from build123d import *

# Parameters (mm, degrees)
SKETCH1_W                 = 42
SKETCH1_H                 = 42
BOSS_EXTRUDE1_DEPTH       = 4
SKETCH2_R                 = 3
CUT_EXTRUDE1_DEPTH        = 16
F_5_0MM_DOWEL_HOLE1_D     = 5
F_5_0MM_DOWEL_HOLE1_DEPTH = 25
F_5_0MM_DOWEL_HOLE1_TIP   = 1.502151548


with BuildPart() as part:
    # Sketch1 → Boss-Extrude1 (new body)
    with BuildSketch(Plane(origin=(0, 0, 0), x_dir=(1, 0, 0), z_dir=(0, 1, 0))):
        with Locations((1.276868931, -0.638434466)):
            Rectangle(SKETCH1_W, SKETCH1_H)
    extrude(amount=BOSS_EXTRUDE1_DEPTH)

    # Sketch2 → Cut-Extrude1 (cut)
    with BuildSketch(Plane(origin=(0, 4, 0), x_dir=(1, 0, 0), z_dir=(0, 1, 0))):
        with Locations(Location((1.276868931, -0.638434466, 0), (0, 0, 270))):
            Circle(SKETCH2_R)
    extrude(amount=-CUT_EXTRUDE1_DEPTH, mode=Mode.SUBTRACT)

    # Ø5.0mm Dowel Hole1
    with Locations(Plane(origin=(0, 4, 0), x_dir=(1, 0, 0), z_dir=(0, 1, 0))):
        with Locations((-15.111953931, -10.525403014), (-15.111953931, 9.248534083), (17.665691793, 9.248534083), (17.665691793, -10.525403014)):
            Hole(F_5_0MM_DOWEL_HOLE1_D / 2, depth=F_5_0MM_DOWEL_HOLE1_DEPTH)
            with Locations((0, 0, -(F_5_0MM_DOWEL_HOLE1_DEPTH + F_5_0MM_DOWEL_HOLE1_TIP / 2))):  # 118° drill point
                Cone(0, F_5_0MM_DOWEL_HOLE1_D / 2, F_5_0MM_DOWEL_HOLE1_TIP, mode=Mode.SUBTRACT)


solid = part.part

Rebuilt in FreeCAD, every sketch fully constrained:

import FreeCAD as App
import Part
import Sketcher
from FreeCAD import Vector
Q = App.Units.Quantity


def add_polygon(sketch, points):
    """Adds a closed chain of lines whose ends are joined by coincident constraints."""
    first, n = sketch.GeometryCount, len(points)
    for a, b in zip(points, points[1:] + points[:1]):
        sketch.addGeometry(Part.LineSegment(App.Vector(*a, 0), App.Vector(*b, 0)), False)
    for i in range(n):
        sketch.addConstraint(Sketcher.Constraint("Coincident", first + i, 2, first + (i + 1) % n, 1))

doc = App.newDocument("Part")
body = doc.addObject("PartDesign::Body", "Body")

# Sketch on XZ plane
sketch1 = doc.addObject("Sketcher::SketchObject", "Sketch")
body.addObject(sketch1)
sketch1.AttachmentSupport = (doc.XZ_Plane, [""])
sketch1.MapMode = "FlatFace"
add_polygon(sketch1, [(-20, -20), (-20, 22), (22, 22), (22, -20)])  # lines 0-3
sketch1.addConstraint([
    Sketcher.Constraint("Vertical", 0),
    Sketcher.Constraint("Horizontal", 1),
    Sketcher.Constraint("Vertical", 2),
    Sketcher.Constraint("Horizontal", 3),
    Sketcher.Constraint("Equal", 3, 0),
    Sketcher.Constraint("DistanceX", 1, 1, 1, 2, Q("42 mm")),
    Sketcher.Constraint("DistanceX", 0, 2, -1, 1, Q("19.723131 mm")),
    Sketcher.Constraint("DistanceY", -1, 1, 0, 2, Q("21.638434 mm")),
])
pad1 = doc.addObject("PartDesign::Pad", "Pad")
body.addObject(pad1)
pad1.Profile = sketch1
pad1.Length = 4
pad1.Reversed = True

# Sketch on XZ plane
sketch2 = doc.addObject("Sketcher::SketchObject", "Sketch001")
body.addObject(sketch2)
sketch2.AttachmentSupport = (doc.XZ_Plane, [""])
sketch2.MapMode = "FlatFace"
sketch2.AttachmentOffset = App.Placement(Vector(0, 0, -4), App.Rotation())
sketch2.addGeometry(Part.Circle(Vector(1.3, 0.6, 0), Vector(0, 0, 1), 3), False)
sketch2.addConstraint([
    Sketcher.Constraint("Diameter", 0, Q("6 mm")),
    Sketcher.Constraint("DistanceX", -1, 1, 0, 3, Q("1.276869 mm")),
    Sketcher.Constraint("DistanceY", -1, 1, 0, 3, Q("0.638434 mm")),
])
pocket1 = doc.addObject("PartDesign::Pocket", "Pocket")
body.addObject(pocket1)
pocket1.Profile = sketch2
pocket1.Length = 16
pocket1.Reversed = True

# Sketch on XZ plane
sketch3 = doc.addObject("Sketcher::SketchObject", "Sketch002")
body.addObject(sketch3)
sketch3.AttachmentSupport = (doc.XZ_Plane, [""])
sketch3.MapMode = "FlatFace"
sketch3.AttachmentOffset = App.Placement(Vector(0, 0, -4), App.Rotation())
sketch3.addGeometry([
    Part.Circle(Vector(-15.1, 10.5, 0), Vector(0, 0, 1), 2.5),
    Part.Circle(Vector(-15.1, -9.2, 0), Vector(0, 0, 1), 2.5),
    Part.Circle(Vector(17.7, -9.2, 0), Vector(0, 0, 1), 2.5),
    Part.Circle(Vector(17.7, 10.5, 0), Vector(0, 0, 1), 2.5),
], False)
sketch3.addConstraint([
    Sketcher.Constraint("Equal", 0, 1),
    Sketcher.Constraint("Equal", 1, 2),
    Sketcher.Constraint("Equal", 2, 3),
    Sketcher.Constraint("Horizontal", 1, 3, 2, 3),
    Sketcher.Constraint("Horizontal", 0, 3, 3, 3),
    Sketcher.Constraint("Vertical", 0, 3, 1, 3),
    Sketcher.Constraint("Vertical", 2, 3, 3, 3),
    Sketcher.Constraint("Diameter", 0, Q("5 mm")),
    Sketcher.Constraint("DistanceX", -1, 1, 2, 3, Q("17.665692 mm")),
    Sketcher.Constraint("DistanceX", 0, 3, -1, 1, Q("15.111954 mm")),
    Sketcher.Constraint("DistanceY", -1, 1, 0, 3, Q("10.525403 mm")),
    Sketcher.Constraint("DistanceY", 1, 3, -1, 1, Q("9.248534 mm")),
])
doc.recompute()
hole = doc.addObject("PartDesign::Hole", "Hole")
body.addObject(hole)
hole.Profile = sketch3
hole.ThreadType = "None"
hole.Diameter = 5
hole.DepthType = "Dimension"
hole.Depth = 25
hole.DrillPoint = "Angled"
hole.DrillPointAngle = 118
hole.Reversed = True

doc.recompute()
